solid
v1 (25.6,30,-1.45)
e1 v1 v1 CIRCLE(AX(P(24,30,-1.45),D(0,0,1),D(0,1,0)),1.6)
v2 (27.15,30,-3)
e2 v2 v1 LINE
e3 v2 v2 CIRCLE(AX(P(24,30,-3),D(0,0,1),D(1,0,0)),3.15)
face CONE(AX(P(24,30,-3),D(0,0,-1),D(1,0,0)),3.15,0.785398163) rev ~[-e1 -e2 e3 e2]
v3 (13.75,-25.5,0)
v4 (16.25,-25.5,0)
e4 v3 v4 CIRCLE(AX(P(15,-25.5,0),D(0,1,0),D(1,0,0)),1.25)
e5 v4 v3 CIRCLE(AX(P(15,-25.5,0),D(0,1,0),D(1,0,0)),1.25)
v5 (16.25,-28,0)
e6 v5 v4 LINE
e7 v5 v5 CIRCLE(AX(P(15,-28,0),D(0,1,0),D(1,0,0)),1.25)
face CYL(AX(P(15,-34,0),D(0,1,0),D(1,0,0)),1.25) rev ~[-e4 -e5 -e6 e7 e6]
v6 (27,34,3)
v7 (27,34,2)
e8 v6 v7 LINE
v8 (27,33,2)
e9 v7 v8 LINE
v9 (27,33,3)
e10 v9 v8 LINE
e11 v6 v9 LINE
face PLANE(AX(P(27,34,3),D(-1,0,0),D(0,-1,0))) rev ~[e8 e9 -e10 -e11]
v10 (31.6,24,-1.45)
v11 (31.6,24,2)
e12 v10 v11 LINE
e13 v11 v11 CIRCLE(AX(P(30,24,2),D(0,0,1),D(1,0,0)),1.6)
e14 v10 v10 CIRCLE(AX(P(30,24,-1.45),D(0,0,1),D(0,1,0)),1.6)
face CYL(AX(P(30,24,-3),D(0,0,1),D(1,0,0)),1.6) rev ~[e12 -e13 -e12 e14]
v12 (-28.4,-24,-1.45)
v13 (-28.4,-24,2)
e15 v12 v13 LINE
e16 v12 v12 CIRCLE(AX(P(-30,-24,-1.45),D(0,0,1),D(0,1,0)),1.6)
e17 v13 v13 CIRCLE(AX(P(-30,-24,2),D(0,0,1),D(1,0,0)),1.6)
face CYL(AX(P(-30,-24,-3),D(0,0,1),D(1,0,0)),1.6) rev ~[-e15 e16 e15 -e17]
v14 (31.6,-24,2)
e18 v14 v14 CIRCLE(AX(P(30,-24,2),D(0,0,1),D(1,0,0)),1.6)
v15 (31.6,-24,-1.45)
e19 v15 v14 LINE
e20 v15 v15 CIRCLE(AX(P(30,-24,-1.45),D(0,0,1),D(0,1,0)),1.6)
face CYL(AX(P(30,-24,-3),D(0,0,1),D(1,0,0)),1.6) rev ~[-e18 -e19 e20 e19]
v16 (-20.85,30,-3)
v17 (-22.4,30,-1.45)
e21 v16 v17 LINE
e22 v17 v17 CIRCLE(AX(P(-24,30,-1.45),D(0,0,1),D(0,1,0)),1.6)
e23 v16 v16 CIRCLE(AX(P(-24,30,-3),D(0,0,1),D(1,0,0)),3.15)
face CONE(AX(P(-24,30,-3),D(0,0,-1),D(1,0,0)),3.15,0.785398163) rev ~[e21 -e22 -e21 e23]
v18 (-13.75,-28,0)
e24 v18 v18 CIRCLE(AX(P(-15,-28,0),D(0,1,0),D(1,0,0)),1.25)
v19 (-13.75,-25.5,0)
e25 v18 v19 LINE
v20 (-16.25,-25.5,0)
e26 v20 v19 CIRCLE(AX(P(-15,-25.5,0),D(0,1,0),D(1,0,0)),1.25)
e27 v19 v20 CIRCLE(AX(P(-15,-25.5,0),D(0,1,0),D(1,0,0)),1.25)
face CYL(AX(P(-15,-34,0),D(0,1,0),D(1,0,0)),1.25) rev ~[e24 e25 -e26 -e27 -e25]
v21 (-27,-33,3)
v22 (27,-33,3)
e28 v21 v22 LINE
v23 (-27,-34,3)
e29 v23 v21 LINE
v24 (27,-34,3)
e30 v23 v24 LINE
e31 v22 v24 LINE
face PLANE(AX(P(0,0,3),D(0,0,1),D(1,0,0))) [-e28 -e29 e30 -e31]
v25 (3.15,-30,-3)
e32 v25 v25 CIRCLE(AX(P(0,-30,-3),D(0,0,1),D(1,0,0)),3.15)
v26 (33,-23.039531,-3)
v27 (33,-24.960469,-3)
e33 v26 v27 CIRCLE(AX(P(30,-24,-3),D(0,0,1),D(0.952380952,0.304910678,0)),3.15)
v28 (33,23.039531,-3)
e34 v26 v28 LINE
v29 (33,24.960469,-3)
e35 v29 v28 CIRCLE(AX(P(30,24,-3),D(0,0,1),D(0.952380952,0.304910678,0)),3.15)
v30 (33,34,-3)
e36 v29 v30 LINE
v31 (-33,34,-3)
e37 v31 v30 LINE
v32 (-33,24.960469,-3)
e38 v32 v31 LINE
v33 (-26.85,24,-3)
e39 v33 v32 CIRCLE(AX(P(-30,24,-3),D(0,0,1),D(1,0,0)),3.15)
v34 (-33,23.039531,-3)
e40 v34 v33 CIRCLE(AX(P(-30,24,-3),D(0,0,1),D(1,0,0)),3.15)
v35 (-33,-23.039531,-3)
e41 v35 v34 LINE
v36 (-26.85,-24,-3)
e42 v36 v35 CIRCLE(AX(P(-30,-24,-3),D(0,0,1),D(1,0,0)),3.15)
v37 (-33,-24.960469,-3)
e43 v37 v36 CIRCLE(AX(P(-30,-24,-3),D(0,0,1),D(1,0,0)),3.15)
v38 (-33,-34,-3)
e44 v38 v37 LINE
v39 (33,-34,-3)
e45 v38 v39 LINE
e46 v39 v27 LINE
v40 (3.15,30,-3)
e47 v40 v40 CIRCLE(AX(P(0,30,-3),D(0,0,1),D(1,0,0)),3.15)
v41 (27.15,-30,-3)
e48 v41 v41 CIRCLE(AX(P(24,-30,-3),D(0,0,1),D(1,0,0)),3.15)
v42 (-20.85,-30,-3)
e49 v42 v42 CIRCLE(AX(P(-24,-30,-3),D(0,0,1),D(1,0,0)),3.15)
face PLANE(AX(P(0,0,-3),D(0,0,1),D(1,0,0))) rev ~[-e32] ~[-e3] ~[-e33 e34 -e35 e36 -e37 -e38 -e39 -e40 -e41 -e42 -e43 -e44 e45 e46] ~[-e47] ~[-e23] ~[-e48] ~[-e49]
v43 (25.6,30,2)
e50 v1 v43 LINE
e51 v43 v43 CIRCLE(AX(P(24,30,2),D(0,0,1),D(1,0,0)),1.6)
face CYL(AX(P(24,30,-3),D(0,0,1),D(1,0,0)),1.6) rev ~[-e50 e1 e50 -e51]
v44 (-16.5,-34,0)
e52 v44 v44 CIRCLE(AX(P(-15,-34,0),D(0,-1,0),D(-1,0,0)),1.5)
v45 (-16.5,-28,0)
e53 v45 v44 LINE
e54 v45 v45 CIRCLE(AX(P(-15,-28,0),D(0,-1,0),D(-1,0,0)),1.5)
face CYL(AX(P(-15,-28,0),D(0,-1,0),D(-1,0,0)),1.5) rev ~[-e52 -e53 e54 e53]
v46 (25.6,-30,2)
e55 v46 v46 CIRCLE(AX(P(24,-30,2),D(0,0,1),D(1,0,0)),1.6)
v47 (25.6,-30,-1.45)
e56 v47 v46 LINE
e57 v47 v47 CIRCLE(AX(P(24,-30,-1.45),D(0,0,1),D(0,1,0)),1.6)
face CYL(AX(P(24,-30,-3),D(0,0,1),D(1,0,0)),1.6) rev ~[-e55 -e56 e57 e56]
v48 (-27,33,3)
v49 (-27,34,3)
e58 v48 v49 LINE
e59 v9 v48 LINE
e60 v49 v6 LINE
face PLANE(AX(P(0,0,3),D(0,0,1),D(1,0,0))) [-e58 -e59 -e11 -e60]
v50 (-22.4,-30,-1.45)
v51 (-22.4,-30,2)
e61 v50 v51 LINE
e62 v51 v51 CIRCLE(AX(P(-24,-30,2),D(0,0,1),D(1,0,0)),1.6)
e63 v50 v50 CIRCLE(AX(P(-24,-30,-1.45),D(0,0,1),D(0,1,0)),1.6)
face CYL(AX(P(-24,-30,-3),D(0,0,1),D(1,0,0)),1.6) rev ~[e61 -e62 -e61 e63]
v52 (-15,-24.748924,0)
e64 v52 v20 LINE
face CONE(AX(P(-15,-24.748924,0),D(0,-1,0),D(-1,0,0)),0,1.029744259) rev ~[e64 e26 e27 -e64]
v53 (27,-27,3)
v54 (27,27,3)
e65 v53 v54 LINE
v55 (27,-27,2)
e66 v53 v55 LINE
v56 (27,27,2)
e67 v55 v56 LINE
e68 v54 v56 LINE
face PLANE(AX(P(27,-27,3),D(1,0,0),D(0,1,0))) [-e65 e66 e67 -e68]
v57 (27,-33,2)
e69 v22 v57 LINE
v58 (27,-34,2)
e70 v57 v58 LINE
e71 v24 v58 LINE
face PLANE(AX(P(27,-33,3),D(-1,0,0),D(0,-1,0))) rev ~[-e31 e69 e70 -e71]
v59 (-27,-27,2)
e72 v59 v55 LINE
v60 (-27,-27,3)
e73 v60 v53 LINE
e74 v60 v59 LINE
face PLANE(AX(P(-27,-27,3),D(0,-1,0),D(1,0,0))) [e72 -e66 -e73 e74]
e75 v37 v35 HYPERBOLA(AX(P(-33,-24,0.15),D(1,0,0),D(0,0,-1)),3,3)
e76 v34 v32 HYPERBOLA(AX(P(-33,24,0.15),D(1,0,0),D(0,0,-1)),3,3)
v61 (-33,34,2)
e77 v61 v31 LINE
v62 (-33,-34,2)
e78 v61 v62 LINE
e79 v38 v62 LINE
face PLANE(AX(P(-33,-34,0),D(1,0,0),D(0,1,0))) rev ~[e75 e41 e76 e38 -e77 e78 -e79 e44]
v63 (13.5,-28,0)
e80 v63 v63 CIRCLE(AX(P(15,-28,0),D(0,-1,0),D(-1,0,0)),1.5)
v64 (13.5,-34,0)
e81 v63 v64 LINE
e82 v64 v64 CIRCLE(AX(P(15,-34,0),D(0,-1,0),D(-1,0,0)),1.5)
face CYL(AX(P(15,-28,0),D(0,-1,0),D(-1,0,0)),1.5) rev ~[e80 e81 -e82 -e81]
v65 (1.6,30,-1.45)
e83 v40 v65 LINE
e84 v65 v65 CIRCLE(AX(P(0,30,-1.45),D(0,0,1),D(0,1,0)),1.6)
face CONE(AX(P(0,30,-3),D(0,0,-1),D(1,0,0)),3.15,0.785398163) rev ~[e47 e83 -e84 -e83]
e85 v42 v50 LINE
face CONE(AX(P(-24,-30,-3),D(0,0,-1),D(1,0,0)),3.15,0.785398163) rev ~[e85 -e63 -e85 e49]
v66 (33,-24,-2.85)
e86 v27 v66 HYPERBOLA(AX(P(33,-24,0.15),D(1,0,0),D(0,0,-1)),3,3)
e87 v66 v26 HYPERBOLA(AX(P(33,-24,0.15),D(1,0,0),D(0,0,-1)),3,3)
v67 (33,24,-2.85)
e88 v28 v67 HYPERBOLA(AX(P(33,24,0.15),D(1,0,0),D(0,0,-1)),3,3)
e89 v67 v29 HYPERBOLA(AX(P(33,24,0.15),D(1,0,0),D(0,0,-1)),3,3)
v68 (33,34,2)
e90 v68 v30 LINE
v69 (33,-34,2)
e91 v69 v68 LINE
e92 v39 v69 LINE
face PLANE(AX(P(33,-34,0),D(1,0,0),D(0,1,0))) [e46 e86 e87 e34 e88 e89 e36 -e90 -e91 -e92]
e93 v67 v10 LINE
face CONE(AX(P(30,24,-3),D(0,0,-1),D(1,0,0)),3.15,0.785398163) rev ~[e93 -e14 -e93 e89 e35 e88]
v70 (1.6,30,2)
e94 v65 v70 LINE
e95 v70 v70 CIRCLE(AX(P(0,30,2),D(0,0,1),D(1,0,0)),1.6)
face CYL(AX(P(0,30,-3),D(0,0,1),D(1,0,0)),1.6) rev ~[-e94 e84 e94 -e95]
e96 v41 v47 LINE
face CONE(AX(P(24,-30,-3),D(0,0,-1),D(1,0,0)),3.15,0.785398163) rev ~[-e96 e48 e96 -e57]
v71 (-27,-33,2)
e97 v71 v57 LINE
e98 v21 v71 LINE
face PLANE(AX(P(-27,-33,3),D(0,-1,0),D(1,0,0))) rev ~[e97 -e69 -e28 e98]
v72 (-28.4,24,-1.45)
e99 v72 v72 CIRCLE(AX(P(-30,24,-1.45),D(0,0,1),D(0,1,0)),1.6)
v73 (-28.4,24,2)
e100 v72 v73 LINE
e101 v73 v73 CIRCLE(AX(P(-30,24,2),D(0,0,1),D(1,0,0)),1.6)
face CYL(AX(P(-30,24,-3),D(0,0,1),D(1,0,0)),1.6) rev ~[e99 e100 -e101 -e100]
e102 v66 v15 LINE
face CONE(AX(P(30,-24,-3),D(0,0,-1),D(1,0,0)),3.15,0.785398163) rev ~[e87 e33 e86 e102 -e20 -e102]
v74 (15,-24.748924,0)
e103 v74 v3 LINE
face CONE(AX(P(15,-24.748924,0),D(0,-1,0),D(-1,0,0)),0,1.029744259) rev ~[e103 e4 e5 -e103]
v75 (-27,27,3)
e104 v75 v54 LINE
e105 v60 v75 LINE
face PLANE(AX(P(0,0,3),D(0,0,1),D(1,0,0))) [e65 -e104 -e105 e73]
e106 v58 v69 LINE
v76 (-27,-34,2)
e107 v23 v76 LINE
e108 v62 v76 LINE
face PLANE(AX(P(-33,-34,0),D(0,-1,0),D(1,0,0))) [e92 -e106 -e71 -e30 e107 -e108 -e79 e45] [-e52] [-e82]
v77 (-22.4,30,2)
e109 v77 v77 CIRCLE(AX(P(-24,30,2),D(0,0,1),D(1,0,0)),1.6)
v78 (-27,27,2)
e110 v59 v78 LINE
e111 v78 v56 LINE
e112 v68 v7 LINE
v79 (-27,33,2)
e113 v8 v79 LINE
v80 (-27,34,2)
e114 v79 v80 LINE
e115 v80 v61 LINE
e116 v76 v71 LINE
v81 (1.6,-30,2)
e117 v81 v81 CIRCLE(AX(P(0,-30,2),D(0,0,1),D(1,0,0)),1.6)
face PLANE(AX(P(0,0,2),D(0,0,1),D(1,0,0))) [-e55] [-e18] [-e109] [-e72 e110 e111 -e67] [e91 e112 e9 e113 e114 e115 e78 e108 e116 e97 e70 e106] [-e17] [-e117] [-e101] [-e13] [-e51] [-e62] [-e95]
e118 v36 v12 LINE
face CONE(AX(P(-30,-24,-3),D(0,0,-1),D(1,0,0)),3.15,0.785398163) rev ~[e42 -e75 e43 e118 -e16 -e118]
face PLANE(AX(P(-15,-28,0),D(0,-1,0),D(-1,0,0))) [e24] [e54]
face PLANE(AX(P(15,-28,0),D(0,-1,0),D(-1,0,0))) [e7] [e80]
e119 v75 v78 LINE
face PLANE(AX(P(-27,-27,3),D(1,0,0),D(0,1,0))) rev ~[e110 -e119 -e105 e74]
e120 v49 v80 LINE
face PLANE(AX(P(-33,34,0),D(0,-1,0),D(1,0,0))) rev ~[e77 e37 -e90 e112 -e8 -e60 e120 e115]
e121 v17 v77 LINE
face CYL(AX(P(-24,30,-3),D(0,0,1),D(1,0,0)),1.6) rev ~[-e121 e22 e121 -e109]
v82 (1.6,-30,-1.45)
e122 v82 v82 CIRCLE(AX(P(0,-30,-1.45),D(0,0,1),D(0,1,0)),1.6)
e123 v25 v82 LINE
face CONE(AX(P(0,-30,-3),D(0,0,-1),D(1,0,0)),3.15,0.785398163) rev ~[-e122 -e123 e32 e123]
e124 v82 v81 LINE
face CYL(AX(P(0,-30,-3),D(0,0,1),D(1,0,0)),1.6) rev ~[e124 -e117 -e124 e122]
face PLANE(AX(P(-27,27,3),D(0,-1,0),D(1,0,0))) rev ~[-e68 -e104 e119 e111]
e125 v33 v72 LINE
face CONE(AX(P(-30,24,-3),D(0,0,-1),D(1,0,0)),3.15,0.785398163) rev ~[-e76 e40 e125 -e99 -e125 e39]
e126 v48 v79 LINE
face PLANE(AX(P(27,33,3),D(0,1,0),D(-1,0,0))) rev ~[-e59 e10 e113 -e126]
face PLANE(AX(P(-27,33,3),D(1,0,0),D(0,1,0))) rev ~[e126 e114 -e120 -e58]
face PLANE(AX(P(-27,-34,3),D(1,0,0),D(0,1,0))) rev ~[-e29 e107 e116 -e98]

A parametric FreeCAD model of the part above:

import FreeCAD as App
import Part
import Sketcher

V = App.Vector
Q = App.Units.Quantity


def add_polygon(sketch, points):
    """Adds a closed chain of lines whose ends are joined by coincident constraints."""
    first, n = sketch.GeometryCount, len(points)
    for a, b in zip(points, points[1:] + points[:1]):
        sketch.addGeometry(Part.LineSegment(App.Vector(*a, 0), App.Vector(*b, 0)), False)
    for i in range(n):
        sketch.addConstraint(Sketcher.Constraint("Coincident", first + i, 2, first + (i + 1) % n, 1))

doc = App.newDocument("Part")
body = doc.addObject("PartDesign::Body", "Body")

# Sketch on XY plane
sketch1 = body.newObject("Sketcher::SketchObject", "Sketch")
sketch1.AttachmentSupport = (doc.getObject("XY_Plane"), [""])
sketch1.MapMode = "FlatFace"
add_polygon(sketch1, [(-33, 34), (-33, -34), (33, -34), (33, 34)])  # lines 0-3
sketch1.addConstraint([
    Sketcher.Constraint("Vertical", 0),
    Sketcher.Constraint("Horizontal", 1),
    Sketcher.Constraint("Vertical", 2),
    Sketcher.Constraint("Horizontal", 3),
    Sketcher.Constraint("Symmetric", 0, 2, 2, 2, -1, 1),
    Sketcher.Constraint("DistanceX", 1, 1, 1, 2, Q("66 mm")),
    Sketcher.Constraint("DistanceY", 0, 2, 0, 1, Q("68 mm")),
])
pad1 = body.newObject("PartDesign::Pad", "Pad")
pad1.Profile = sketch1
pad1.Length = 6
pad1.Midplane = True

# Sketch on XY plane
sketch2 = body.newObject("Sketcher::SketchObject", "Sketch001")
sketch2.AttachmentSupport = (doc.getObject("XY_Plane"), [""])
sketch2.MapMode = "FlatFace"
sketch2.AttachmentOffset = App.Placement(V(0, 0, 3), App.Rotation())
add_polygon(sketch2, [(-27, 34), (-33, 34), (-33, -34), (-27, -34), (-27, -33), (27, -33), (27, -34), (33, -34), (33, 34), (27, 34), (27, 33), (-27, 33)])  # lines 0-11
add_polygon(sketch2, [(27, -27), (-27, -27), (-27, 27), (27, 27)])  # lines 12-15
sketch2.addConstraint([
    Sketcher.Constraint("Horizontal", 0),
    Sketcher.Constraint("Vertical", 1),
    Sketcher.Constraint("Horizontal", 2),
    Sketcher.Constraint("Vertical", 3),
    Sketcher.Constraint("Horizontal", 4),
    Sketcher.Constraint("Vertical", 5),
    Sketcher.Constraint("Horizontal", 6),
    Sketcher.Constraint("Vertical", 7),
    Sketcher.Constraint("Horizontal", 8),
    Sketcher.Constraint("Vertical", 9),
    Sketcher.Constraint("Horizontal", 10),
    Sketcher.Constraint("Vertical", 11),
    Sketcher.Constraint("Horizontal", 12),
    Sketcher.Constraint("Vertical", 13),
    Sketcher.Constraint("Horizontal", 14),
    Sketcher.Constraint("Vertical", 15),
    Sketcher.Constraint("Symmetric", 0, 2, 6, 2, -1, 1),
    Sketcher.Constraint("Symmetric", 2, 2, 8, 2, -1, 1),
    Sketcher.Constraint("Symmetric", 4, 2, 10, 2, -1, 1),
    Sketcher.Constraint("Symmetric", 12, 2, 14, 2, -1, 1),
    Sketcher.Constraint("Symmetric", 2, 2, 5, 2, -2),
    Sketcher.Constraint("Vertical", 11, 2, 12, 2),
    Sketcher.Constraint("Equal", 14, 13),
    Sketcher.Constraint("DistanceX", 0, 2, 0, 1, Q("6 mm")),
    Sketcher.Constraint("DistanceX", 4, 1, 4, 2, Q("54 mm")),
    Sketcher.Constraint("DistanceY", 1, 2, 1, 1, Q("68 mm")),
    Sketcher.Constraint("DistanceY", 3, 1, 3, 2, Q("1 mm")),
])
pocket1 = body.newObject("PartDesign::Pocket", "Pocket")
pocket1.Profile = sketch2
pocket1.Length = 1

# Sketch on XY plane
sketch3 = body.newObject("Sketcher::SketchObject", "Sketch002")
sketch3.AttachmentSupport = (doc.getObject("XY_Plane"), [""])
sketch3.MapMode = "FlatFace"
sketch3.AttachmentOffset = App.Placement(V(0, 0, -3), App.Rotation())
sketch3.addGeometry([
    Part.Circle(V(24, 30, 0), V(0, 0, 1), 1.6),  # 0
    Part.Circle(V(0, 30, 0), V(0, 0, 1), 1.6),  # 1
    Part.Circle(V(-24, 30, 0), V(0, 0, 1), 1.6),  # 2
    Part.Circle(V(-24, -30, 0), V(0, 0, 1), 1.6),  # 3
    Part.Circle(V(0, -30, 0), V(0, 0, 1), 1.6),  # 4
    Part.Circle(V(24, -30, 0), V(0, 0, 1), 1.6),  # 5
    Part.Circle(V(30, 24, 0), V(0, 0, 1), 1.6),  # 6
    Part.Circle(V(30, -24, 0), V(0, 0, 1), 1.6),  # 7
    Part.Circle(V(-30, -24, 0), V(0, 0, 1), 1.6),  # 8
    Part.Circle(V(-30, 24, 0), V(0, 0, 1), 1.6),  # 9
], False)
sketch3.addConstraint([
    Sketcher.Constraint("Equal", 0, 1),
    Sketcher.Constraint("Equal", 1, 2),
    Sketcher.Constraint("Equal", 2, 3),
    Sketcher.Constraint("Equal", 3, 4),
    Sketcher.Constraint("Equal", 4, 5),
    Sketcher.Constraint("Equal", 5, 6),
    Sketcher.Constraint("Equal", 6, 7),
    Sketcher.Constraint("Equal", 7, 8),
    Sketcher.Constraint("Equal", 8, 9),
    Sketcher.Constraint("Symmetric", 0, 3, 3, 3, -1, 1),
    Sketcher.Constraint("Symmetric", 1, 3, 4, 3, -1, 1),
    Sketcher.Constraint("Symmetric", 2, 3, 5, 3, -1, 1),
    Sketcher.Constraint("Symmetric", 6, 3, 8, 3, -1, 1),
    Sketcher.Constraint("Symmetric", 7, 3, 9, 3, -1, 1),
    Sketcher.Constraint("Symmetric", 0, 3, 2, 3, -2),
    Sketcher.Constraint("Symmetric", 7, 3, 8, 3, -2),
    Sketcher.Constraint("PointOnObject", 1, 3, -2),
    Sketcher.Constraint("Horizontal", 0, 3, 1, 3),
    Sketcher.Constraint("Diameter", 0, Q("3.2 mm")),
    Sketcher.Constraint("DistanceX", -1, 1, 0, 3, Q("24 mm")),
    Sketcher.Constraint("DistanceY", -1, 1, 0, 3, Q("30 mm")),
    Sketcher.Constraint("DistanceX", -1, 1, 6, 3, Q("30 mm")),
    Sketcher.Constraint("DistanceY", -1, 1, 6, 3, Q("24 mm")),
])
doc.recompute()
hole = body.newObject("PartDesign::Hole", "Hole")
hole.Profile = sketch3
hole.ThreadType = "None"
hole.Diameter = 3.2
hole.DepthType = "ThroughAll"
hole.HoleCutType = "Countersink"
hole.HoleCutDiameter = 6.3
hole.HoleCutCountersinkAngle = 90
hole.Reversed = True

# Sketch on XZ plane
sketch4 = body.newObject("Sketcher::SketchObject", "Sketch003")
sketch4.AttachmentSupport = (doc.getObject("XZ_Plane"), [""])
sketch4.MapMode = "FlatFace"
sketch4.AttachmentOffset = App.Placement(V(0, 0, 34), App.Rotation())
sketch4.addGeometry([
    Part.Circle(V(-15, 0, 0), V(0, 0, 1), 1.2),
    Part.Circle(V(15, 0, 0), V(0, 0, 1), 1.2),
], False)
sketch4.addConstraint([
    Sketcher.Constraint("Equal", 0, 1),
    Sketcher.Constraint("Symmetric", 0, 3, 1, 3, -1, 1),
    Sketcher.Constraint("PointOnObject", 0, 3, -1),
    Sketcher.Constraint("Diameter", 0, Q("2.5 mm")),
    Sketcher.Constraint("DistanceX", 0, 3, -1, 1, Q("15 mm")),
])
doc.recompute()
hole2 = body.newObject("PartDesign::Hole", "Hole001")
hole2.Profile = sketch4
hole2.ThreadType = "None"
hole2.Diameter = 2.5
hole2.DepthType = "Dimension"
hole2.Depth = 8.5
hole2.DrillPoint = "Angled"
hole2.DrillPointAngle = 118
hole2.HoleCutType = "Counterbore"
hole2.HoleCutDiameter = 3
hole2.HoleCutDepth = 6

doc.recompute()
